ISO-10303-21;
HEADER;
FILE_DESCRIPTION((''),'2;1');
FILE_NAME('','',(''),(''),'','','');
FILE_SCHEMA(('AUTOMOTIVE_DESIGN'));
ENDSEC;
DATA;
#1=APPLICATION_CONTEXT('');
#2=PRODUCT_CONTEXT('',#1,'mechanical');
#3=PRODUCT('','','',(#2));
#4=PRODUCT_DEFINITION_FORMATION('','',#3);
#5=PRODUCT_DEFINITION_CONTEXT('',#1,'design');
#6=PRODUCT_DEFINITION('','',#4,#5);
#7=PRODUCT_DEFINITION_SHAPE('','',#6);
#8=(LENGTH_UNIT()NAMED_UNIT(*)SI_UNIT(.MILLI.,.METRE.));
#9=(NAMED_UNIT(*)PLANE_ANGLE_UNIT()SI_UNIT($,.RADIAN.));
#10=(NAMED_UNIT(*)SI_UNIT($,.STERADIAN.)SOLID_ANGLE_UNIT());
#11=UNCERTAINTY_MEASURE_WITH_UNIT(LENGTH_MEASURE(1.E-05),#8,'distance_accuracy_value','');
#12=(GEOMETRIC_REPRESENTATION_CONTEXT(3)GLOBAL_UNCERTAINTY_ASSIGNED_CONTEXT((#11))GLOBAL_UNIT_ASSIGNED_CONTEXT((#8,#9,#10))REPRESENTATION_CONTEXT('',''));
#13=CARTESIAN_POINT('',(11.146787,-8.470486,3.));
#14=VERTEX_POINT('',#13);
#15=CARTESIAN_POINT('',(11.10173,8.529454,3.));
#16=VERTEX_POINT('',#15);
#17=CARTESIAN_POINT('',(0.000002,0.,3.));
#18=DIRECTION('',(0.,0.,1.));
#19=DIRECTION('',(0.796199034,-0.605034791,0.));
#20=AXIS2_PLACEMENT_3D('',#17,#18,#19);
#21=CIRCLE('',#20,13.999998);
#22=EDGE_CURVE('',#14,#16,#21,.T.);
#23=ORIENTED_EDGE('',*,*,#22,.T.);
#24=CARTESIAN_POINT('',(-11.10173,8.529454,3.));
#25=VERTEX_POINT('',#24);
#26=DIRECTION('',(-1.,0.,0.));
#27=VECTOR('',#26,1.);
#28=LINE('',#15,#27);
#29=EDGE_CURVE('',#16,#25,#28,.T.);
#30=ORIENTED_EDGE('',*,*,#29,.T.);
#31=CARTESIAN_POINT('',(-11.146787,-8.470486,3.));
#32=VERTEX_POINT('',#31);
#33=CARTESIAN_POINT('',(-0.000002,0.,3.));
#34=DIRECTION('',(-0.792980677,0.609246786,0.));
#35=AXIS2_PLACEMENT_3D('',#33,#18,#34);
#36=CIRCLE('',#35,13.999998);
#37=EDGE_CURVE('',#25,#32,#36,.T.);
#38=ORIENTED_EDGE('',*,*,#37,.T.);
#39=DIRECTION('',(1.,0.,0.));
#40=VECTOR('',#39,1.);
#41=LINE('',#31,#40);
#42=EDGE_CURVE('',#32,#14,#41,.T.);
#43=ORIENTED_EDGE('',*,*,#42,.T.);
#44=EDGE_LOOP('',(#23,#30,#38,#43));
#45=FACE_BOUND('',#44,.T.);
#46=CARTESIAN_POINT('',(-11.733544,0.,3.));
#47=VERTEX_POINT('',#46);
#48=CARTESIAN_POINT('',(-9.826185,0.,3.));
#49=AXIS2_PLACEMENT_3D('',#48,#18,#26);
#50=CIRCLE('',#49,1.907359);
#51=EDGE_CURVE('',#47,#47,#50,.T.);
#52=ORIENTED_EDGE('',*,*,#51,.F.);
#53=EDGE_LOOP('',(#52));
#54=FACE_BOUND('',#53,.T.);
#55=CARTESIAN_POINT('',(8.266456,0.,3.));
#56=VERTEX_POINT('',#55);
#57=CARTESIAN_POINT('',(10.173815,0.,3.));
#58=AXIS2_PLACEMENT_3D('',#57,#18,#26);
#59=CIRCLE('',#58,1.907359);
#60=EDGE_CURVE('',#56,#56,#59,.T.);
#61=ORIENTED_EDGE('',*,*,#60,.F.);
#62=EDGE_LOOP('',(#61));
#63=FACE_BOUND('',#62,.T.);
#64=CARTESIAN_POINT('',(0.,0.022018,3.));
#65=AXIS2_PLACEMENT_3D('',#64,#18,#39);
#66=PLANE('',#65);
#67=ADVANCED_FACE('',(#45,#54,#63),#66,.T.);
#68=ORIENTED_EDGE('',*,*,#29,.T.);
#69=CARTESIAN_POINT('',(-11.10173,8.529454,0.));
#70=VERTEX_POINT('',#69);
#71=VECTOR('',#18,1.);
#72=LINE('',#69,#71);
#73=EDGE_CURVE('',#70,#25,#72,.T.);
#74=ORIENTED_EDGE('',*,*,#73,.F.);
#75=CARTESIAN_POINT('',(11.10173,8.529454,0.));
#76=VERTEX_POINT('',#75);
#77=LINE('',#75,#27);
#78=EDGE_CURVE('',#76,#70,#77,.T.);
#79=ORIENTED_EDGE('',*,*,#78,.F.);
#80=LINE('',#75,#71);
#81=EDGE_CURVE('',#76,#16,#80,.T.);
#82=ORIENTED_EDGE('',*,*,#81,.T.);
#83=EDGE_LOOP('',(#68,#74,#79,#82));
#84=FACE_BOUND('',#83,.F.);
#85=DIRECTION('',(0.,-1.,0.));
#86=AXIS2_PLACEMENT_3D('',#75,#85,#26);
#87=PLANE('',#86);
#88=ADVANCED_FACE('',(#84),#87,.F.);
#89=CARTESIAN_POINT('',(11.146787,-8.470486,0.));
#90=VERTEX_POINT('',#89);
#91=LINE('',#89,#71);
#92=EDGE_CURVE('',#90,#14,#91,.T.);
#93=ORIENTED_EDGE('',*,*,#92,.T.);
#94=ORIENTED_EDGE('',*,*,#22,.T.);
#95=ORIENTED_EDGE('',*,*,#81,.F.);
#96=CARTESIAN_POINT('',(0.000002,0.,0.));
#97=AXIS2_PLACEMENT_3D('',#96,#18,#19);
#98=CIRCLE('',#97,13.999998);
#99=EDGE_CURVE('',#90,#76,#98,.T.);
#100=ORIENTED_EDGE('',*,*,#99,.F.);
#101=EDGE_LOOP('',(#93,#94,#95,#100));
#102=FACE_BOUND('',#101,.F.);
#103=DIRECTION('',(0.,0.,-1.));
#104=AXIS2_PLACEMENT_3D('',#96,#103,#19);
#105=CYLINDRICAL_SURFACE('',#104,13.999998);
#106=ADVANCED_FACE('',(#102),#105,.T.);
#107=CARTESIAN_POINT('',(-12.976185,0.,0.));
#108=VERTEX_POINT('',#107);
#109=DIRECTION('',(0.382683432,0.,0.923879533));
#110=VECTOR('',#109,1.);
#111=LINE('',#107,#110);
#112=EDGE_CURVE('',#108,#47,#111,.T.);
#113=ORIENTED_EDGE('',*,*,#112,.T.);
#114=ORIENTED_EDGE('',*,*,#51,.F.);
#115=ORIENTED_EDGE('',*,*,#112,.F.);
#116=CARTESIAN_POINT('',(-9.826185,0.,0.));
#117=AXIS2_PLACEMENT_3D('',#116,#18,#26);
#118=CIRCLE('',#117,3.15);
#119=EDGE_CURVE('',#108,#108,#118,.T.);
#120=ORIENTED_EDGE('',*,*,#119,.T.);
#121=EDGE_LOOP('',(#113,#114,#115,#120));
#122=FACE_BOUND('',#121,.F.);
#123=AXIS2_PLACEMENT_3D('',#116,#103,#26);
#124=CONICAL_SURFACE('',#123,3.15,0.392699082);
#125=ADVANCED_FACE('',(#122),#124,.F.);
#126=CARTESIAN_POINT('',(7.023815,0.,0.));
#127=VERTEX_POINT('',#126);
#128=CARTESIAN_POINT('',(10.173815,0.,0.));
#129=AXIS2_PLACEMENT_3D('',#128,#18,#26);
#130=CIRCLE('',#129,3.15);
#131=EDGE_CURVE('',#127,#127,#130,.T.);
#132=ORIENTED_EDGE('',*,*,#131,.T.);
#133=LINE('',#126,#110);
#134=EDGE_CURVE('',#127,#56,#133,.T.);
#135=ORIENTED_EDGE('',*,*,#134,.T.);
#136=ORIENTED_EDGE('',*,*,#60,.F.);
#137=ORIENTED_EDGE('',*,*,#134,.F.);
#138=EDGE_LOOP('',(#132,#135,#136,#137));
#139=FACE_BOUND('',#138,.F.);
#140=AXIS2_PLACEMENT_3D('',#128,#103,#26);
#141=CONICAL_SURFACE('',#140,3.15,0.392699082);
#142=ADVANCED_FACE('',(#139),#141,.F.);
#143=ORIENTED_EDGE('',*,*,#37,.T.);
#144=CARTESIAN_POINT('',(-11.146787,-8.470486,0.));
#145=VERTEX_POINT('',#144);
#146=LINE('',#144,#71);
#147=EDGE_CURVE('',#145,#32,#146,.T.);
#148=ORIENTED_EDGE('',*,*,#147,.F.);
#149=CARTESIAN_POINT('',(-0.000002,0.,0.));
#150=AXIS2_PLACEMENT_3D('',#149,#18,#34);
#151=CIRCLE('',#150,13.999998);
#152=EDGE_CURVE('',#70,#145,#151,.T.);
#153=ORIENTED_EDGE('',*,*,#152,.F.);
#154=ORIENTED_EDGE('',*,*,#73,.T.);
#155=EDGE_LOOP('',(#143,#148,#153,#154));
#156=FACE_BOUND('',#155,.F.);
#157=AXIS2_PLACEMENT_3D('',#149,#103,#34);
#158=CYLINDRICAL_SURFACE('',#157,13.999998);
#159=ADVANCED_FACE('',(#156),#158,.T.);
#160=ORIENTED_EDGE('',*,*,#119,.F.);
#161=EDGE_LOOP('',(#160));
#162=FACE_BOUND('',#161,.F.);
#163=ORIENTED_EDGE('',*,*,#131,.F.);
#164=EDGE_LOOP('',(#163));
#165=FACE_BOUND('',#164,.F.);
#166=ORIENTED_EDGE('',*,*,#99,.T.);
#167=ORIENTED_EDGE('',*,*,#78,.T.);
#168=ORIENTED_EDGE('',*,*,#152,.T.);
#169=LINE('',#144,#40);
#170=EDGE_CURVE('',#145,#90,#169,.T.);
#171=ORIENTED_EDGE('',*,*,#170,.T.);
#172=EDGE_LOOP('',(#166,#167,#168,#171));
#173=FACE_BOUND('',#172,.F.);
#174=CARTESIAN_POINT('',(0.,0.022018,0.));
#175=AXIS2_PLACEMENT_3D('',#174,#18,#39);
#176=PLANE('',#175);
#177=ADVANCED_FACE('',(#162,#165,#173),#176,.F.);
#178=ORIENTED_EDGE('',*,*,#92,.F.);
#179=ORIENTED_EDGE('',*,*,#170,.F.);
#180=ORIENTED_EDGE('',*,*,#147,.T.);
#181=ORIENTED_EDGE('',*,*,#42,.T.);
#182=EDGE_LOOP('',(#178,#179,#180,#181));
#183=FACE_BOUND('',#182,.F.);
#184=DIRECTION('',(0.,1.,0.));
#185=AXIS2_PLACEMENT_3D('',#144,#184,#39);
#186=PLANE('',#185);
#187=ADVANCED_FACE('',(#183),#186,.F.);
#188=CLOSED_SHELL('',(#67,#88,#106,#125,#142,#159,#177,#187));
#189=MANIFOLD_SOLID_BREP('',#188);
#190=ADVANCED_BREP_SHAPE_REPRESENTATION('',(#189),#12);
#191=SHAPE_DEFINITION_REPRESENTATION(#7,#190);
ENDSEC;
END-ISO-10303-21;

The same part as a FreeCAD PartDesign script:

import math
import FreeCAD as App
import Part
import Sketcher

doc = App.newDocument("Part")
body = doc.addObject("PartDesign::Body", "Body")

# Sketch on XY plane
sketch1 = body.newObject("Sketcher::SketchObject", "Sketch")
sketch1.AttachmentSupport = (doc.getObject("XY_Plane"), [""])
sketch1.MapMode = "FlatFace"
sketch1.addGeometry([
    Part.LineSegment(App.Vector(11, 9, 0), App.Vector(-11, 9, 0)),
    Part.ArcOfCircle(Part.Circle(App.Vector(0, 0, 0), App.Vector(0, 0, 1), 14), math.radians(142), math.radians(217)),
    Part.LineSegment(App.Vector(-11, -8, 0), App.Vector(11, -8, 0)),
    Part.ArcOfCircle(Part.Circle(App.Vector(0, 0, 0), App.Vector(0, 0, 1), 14), math.radians(-37), math.radians(38)),
], False)
sketch1.addConstraint([
    Sketcher.Constraint("Coincident", 0, 2, 1, 1),
    Sketcher.Constraint("Coincident", 1, 2, 2, 1),
    Sketcher.Constraint("Coincident", 2, 2, 3, 1),
    Sketcher.Constraint("Coincident", 3, 2, 0, 1),
    Sketcher.Constraint("Horizontal", 0),
    Sketcher.Constraint("Horizontal", 2),
    Sketcher.Constraint("Coincident", 1, 3, -1, 1),
    Sketcher.Constraint("Coincident", 3, 3, -1, 1),
    Sketcher.Constraint("Equal", 1, 3),
    Sketcher.Constraint("Radius", 1, 13.999998),
    Sketcher.Constraint("DistanceX", 0, 2, 0, 1, 22.20346),
    Sketcher.Constraint("DistanceX", 2, 1, 2, 2, 22.293574),
])
pad1 = body.newObject("PartDesign::Pad", "Pad")
pad1.Profile = sketch1
pad1.Length = 3

# Sketch on XY plane
sketch2 = body.newObject("Sketcher::SketchObject", "Sketch001")
sketch2.AttachmentSupport = (doc.getObject("XY_Plane"), [""])
sketch2.MapMode = "FlatFace"
sketch2.addGeometry([
    Part.Circle(App.Vector(-9.8, 0, 0), App.Vector(0, 0, 1), 1.7),
    Part.Circle(App.Vector(10.2, 0, 0), App.Vector(0, 0, 1), 1.7),
], False)
sketch2.addConstraint([
    Sketcher.Constraint("Equal", 0, 1),
    Sketcher.Constraint("PointOnObject", 0, 3, -1),
    Sketcher.Constraint("PointOnObject", 1, 3, -1),
    Sketcher.Constraint("Diameter", 0, 3.4),
    Sketcher.Constraint("DistanceX", 0, 3, 1, 3, 20.0),
    Sketcher.Constraint("DistanceX", 0, 3, -1, 1, 9.826185),
])
doc.recompute()
hole = body.newObject("PartDesign::Hole", "Hole")
hole.Profile = sketch2
hole.ThreadType = "None"
hole.Diameter = 3.4
hole.DepthType = "ThroughAll"
hole.HoleCutType = "Countersink"
hole.HoleCutDiameter = 6.3
hole.HoleCutCountersinkAngle = 45
hole.Reversed = True

doc.recompute()
